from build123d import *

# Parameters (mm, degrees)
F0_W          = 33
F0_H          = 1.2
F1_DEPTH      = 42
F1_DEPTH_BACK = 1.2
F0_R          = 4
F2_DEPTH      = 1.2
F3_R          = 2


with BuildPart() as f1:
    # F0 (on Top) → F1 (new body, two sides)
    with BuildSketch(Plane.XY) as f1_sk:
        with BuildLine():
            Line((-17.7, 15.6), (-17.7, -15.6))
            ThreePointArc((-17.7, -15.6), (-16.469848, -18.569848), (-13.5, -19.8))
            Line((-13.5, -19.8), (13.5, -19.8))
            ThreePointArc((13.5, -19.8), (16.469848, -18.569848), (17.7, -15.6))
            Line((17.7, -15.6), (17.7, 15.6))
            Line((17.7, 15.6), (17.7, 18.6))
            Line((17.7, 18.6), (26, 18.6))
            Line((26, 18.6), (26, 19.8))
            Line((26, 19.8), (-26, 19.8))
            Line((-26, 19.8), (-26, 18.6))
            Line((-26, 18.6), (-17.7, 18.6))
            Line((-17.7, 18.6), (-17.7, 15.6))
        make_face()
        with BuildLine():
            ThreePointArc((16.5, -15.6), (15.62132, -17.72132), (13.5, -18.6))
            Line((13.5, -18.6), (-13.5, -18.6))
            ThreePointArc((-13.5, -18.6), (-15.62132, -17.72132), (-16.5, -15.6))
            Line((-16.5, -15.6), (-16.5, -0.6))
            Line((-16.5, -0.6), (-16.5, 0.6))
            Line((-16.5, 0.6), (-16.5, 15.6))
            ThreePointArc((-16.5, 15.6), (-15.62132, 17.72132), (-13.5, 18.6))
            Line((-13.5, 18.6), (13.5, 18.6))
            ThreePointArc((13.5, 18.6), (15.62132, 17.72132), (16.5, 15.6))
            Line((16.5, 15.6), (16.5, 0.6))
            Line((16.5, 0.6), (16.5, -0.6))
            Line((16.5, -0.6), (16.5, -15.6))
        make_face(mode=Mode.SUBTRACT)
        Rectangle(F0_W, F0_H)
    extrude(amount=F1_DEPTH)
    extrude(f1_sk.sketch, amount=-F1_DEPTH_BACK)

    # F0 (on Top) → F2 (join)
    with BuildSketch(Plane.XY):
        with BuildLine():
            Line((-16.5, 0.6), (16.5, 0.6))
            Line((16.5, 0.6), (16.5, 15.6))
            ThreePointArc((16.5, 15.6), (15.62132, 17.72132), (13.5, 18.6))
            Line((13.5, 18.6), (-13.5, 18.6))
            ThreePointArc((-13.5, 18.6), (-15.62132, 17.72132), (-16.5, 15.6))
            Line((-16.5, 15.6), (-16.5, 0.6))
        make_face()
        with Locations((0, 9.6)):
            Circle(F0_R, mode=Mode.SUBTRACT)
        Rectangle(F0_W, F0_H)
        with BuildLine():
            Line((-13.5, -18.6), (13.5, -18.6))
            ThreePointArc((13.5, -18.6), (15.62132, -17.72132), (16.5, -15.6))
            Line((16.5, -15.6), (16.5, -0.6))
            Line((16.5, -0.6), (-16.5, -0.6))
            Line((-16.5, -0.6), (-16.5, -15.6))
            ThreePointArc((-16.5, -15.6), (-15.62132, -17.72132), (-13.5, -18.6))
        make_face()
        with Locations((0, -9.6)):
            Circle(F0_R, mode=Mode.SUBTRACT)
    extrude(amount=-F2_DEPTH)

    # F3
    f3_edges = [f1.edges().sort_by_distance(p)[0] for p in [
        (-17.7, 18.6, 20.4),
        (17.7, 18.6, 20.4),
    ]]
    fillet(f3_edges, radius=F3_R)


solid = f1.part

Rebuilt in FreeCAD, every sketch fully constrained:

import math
import FreeCAD as App
import Part
import Sketcher
from FreeCAD import Vector


def edges_at(feature, points):
    """Names of the edges that pass closest to the given points."""
    edges = feature.Shape.Edges
    near = lambda p: min(range(len(edges)), key=lambda i: edges[i].distToShape(Part.Vertex(*p))[0])
    return sorted({f"Edge{near(p) + 1}" for p in points})

doc = App.newDocument("Part")
body = doc.addObject("PartDesign::Body", "Body")

sketch1 = body.newObject("Sketcher::SketchObject", "Sketch")
sketch1.AttachmentSupport = (doc.getObject("XY_Plane"), [""])
sketch1.MapMode = "FlatFace"
sketch1.addGeometry([
    Part.ArcOfCircle(Part.Circle(Vector(-13.5, -15.6, 0), Vector(0, 0, 1), 4.2), math.radians(-180), math.radians(-90)),
    Part.LineSegment(Vector(-13.5, -19.8, 0), Vector(13.5, -19.8, 0)),
    Part.ArcOfCircle(Part.Circle(Vector(13.5, -15.6, 0), Vector(0, 0, 1), 4.2), math.radians(-90), math.radians(0)),
    Part.LineSegment(Vector(17.7, -15.6, 0), Vector(17.7, 18.6, 0)),
    Part.LineSegment(Vector(17.7, 18.6, 0), Vector(26, 18.6, 0)),
    Part.LineSegment(Vector(26, 18.6, 0), Vector(26, 19.8, 0)),
    Part.LineSegment(Vector(26, 19.8, 0), Vector(-26, 19.8, 0)),
    Part.LineSegment(Vector(-26, 19.8, 0), Vector(-26, 18.6, 0)),
    Part.LineSegment(Vector(-26, 18.6, 0), Vector(-17.7, 18.6, 0)),
    Part.LineSegment(Vector(-17.7, 18.6, 0), Vector(-17.7, -15.6, 0)),
    Part.LineSegment(Vector(16.5, 15.6, 0), Vector(16.5, 0.6, 0)),
    Part.LineSegment(Vector(16.5, 0.6, 0), Vector(-16.5, 0.6, 0)),
    Part.LineSegment(Vector(-16.5, 0.6, 0), Vector(-16.5, 15.6, 0)),
    Part.ArcOfCircle(Part.Circle(Vector(-13.5, 15.6, 0), Vector(0, 0, 1), 3), math.radians(90), math.radians(180)),
    Part.LineSegment(Vector(-13.5, 18.6, 0), Vector(13.5, 18.6, 0)),
    Part.ArcOfCircle(Part.Circle(Vector(13.5, 15.6, 0), Vector(0, 0, 1), 3), math.radians(0), math.radians(90)),
    Part.LineSegment(Vector(16.5, -0.6, 0), Vector(16.5, -15.6, 0)),
    Part.ArcOfCircle(Part.Circle(Vector(13.5, -15.6, 0), Vector(0, 0, 1), 3), math.radians(-90), math.radians(0)),
    Part.LineSegment(Vector(13.5, -18.6, 0), Vector(-13.5, -18.6, 0)),
    Part.ArcOfCircle(Part.Circle(Vector(-13.5, -15.6, 0), Vector(0, 0, 1), 3), math.radians(-180), math.radians(-90)),
    Part.LineSegment(Vector(-16.5, -15.6, 0), Vector(-16.5, -0.6, 0)),
    Part.LineSegment(Vector(-16.5, -0.6, 0), Vector(16.5, -0.6, 0)),
], False)
sketch1.addConstraint([
    Sketcher.Constraint("Tangent", 0, 2, 1, 1),
    Sketcher.Constraint("Tangent", 1, 2, 2, 1),
    Sketcher.Constraint("Tangent", 2, 2, 3, 1),
    Sketcher.Constraint("Coincident", 3, 2, 4, 1),
    Sketcher.Constraint("Coincident", 4, 2, 5, 1),
    Sketcher.Constraint("Coincident", 5, 2, 6, 1),
    Sketcher.Constraint("Coincident", 6, 2, 7, 1),
    Sketcher.Constraint("Coincident", 7, 2, 8, 1),
    Sketcher.Constraint("Coincident", 8, 2, 9, 1),
    Sketcher.Constraint("Tangent", 9, 2, 0, 1),
    Sketcher.Constraint("Coincident", 10, 2, 11, 1),
    Sketcher.Constraint("Coincident", 11, 2, 12, 1),
    Sketcher.Constraint("Tangent", 12, 2, 13, 2),
    Sketcher.Constraint("Tangent", 13, 1, 14, 1),
    Sketcher.Constraint("Tangent", 14, 2, 15, 2),
    Sketcher.Constraint("Tangent", 15, 1, 10, 1),
    Sketcher.Constraint("Tangent", 16, 2, 17, 2),
    Sketcher.Constraint("Tangent", 17, 1, 18, 1),
    Sketcher.Constraint("Tangent", 18, 2, 19, 2),
    Sketcher.Constraint("Tangent", 19, 1, 20, 1),
    Sketcher.Constraint("Coincident", 20, 2, 21, 1),
    Sketcher.Constraint("Coincident", 21, 2, 16, 1),
    Sketcher.Constraint("Horizontal", 1),
    Sketcher.Constraint("Vertical", 3),
    Sketcher.Constraint("Horizontal", 4),
    Sketcher.Constraint("Vertical", 5),
    Sketcher.Constraint("Horizontal", 6),
    Sketcher.Constraint("Vertical", 7),
    Sketcher.Constraint("Horizontal", 8),
    Sketcher.Constraint("Vertical", 9),
    Sketcher.Constraint("Vertical", 10),
    Sketcher.Constraint("Horizontal", 11),
    Sketcher.Constraint("Vertical", 12),
    Sketcher.Constraint("Horizontal", 14),
    Sketcher.Constraint("Vertical", 16),
    Sketcher.Constraint("Horizontal", 18),
    Sketcher.Constraint("Vertical", 20),
    Sketcher.Constraint("Horizontal", 21),
    Sketcher.Constraint("Coincident", 17, 3, 2, 3),
    Sketcher.Constraint("Coincident", 19, 3, 0, 3),
    Sketcher.Constraint("Equal", 0, 2),
    Sketcher.Constraint("Equal", 13, 15),
    Sketcher.Constraint("Equal", 15, 17),
    Sketcher.Constraint("Symmetric", 2, 3, 13, 3, -1, 1),
    Sketcher.Constraint("Symmetric", 10, 2, 20, 2, -1, 1),
    Sketcher.Constraint("Symmetric", 4, 2, 7, 2, -2),
    Sketcher.Constraint("Horizontal", 8, 2, 13, 1),
    Sketcher.Constraint("Vertical", 0, 3, 13, 3),
    Sketcher.Constraint("Radius", 13, 3.000001),
    Sketcher.Constraint("Radius", 0, 4.200002),
    Sketcher.Constraint("DistanceX", 1, 1, 1, 2, 27.0),
    Sketcher.Constraint("DistanceX", 6, 2, 6, 1, 52.0),
    Sketcher.Constraint("DistanceY", 10, 2, 10, 1, 15.0),
    Sketcher.Constraint("DistanceY", 3, 1, 3, 2, 34.2),
    Sketcher.Constraint("DistanceY", 5, 1, 5, 2, 1.2),
])
pad1 = body.newObject("PartDesign::Pad", "Pad")
pad1.Profile = sketch1
pad1.Type = "TwoLengths"
pad1.Length = 42
pad1.Length2 = 1.2

sketch2 = body.newObject("Sketcher::SketchObject", "Sketch001")
sketch2.AttachmentSupport = (doc.getObject("XY_Plane"), [""])
sketch2.MapMode = "FlatFace"
sketch2.addGeometry([
    Part.LineSegment(Vector(-16.5, 15.6, 0), Vector(-16.5, -15.6, 0)),
    Part.ArcOfCircle(Part.Circle(Vector(-13.5, -15.6, 0), Vector(0, 0, 1), 3), math.radians(-180), math.radians(-90)),
    Part.LineSegment(Vector(-13.5, -18.6, 0), Vector(13.5, -18.6, 0)),
    Part.ArcOfCircle(Part.Circle(Vector(13.5, -15.6, 0), Vector(0, 0, 1), 3), math.radians(-90), math.radians(0)),
    Part.LineSegment(Vector(16.5, -15.6, 0), Vector(16.5, 15.6, 0)),
    Part.ArcOfCircle(Part.Circle(Vector(13.5, 15.6, 0), Vector(0, 0, 1), 3), math.radians(0), math.radians(90)),
    Part.LineSegment(Vector(13.5, 18.6, 0), Vector(-13.5, 18.6, 0)),
    Part.ArcOfCircle(Part.Circle(Vector(-13.5, 15.6, 0), Vector(0, 0, 1), 3), math.radians(90), math.radians(180)),
    Part.Circle(Vector(0, -9.6, 0), Vector(0, 0, 1), 4),
    Part.Circle(Vector(0, 9.6, 0), Vector(0, 0, 1), 4),
], False)
sketch2.addConstraint([
    Sketcher.Constraint("Tangent", 0, 2, 1, 1),
    Sketcher.Constraint("Tangent", 1, 2, 2, 1),
    Sketcher.Constraint("Tangent", 2, 2, 3, 1),
    Sketcher.Constraint("Tangent", 3, 2, 4, 1),
    Sketcher.Constraint("Tangent", 4, 2, 5, 1),
    Sketcher.Constraint("Tangent", 5, 2, 6, 1),
    Sketcher.Constraint("Tangent", 6, 2, 7, 1),
    Sketcher.Constraint("Tangent", 7, 2, 0, 1),
    Sketcher.Constraint("Vertical", 0),
    Sketcher.Constraint("Horizontal", 2),
    Sketcher.Constraint("Vertical", 4),
    Sketcher.Constraint("Horizontal", 6),
    Sketcher.Constraint("Equal", 1, 3),
    Sketcher.Constraint("Equal", 3, 5),
    Sketcher.Constraint("Equal", 5, 7),
    Sketcher.Constraint("Equal", 8, 9),
    Sketcher.Constraint("Symmetric", 1, 3, 5, 3, -1, 1),
    Sketcher.Constraint("Symmetric", 8, 3, 9, 3, -1, 1),
    Sketcher.Constraint("PointOnObject", 8, 3, -2),
    Sketcher.Constraint("Diameter", 8, 8.0),
    Sketcher.Constraint("Radius", 1, 3.000001),
    Sketcher.Constraint("DistanceX", 2, 1, 2, 2, 27.0),
    Sketcher.Constraint("DistanceY", 0, 2, 0, 1, 31.2),
    Sketcher.Constraint("DistanceY", 1, 3, 8, 3, 5.999999),
])
pad2 = body.newObject("PartDesign::Pad", "Pad001")
pad2.Profile = sketch2
pad2.Length = 1.2
pad2.Reversed = True
doc.recompute()

fillet = body.newObject("PartDesign::Fillet", "Fillet")
fillet.Base = (pad2, edges_at(pad2, [(-17.7, 18.6, 20.4), (17.7, 18.6, 20.4)]))
fillet.Radius = 2

doc.recompute()
